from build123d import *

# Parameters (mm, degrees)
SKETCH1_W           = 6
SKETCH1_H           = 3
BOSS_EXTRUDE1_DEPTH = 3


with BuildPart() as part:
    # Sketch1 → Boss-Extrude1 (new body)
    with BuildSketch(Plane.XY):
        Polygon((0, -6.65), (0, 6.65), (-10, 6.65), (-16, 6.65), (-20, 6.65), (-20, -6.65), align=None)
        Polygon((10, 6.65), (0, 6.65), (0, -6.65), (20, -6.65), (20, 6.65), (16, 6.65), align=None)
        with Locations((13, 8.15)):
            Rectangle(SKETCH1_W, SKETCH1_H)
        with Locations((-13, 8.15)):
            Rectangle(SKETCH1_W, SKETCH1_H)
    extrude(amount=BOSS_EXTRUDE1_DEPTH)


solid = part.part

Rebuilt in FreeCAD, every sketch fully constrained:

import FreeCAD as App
import Part
import Sketcher

V = App.Vector
Q = App.Units.Quantity

doc = App.newDocument("Part")
body = doc.addObject("PartDesign::Body", "Body")

sketch1 = body.newObject("Sketcher::SketchObject", "Sketch")
sketch1.AttachmentSupport = (doc.getObject("XY_Plane"), [""])
sketch1.MapMode = "FlatFace"
sketch1.addGeometry([
    Part.LineSegment(V(-20, 6.7, 0), V(-20, -6.7, 0)),
    Part.LineSegment(V(-20, -6.7, 0), V(20, -6.7, 0)),
    Part.LineSegment(V(20, -6.7, 0), V(20, 6.7, 0)),
    Part.LineSegment(V(20, 6.7, 0), V(16, 6.7, 0)),
    Part.LineSegment(V(16, 6.7, 0), V(16, 9.7, 0)),
    Part.LineSegment(V(16, 9.7, 0), V(10, 9.7, 0)),
    Part.LineSegment(V(10, 9.7, 0), V(10, 6.7, 0)),
    Part.LineSegment(V(10, 6.7, 0), V(-10, 6.7, 0)),
    Part.LineSegment(V(-10, 6.7, 0), V(-10, 9.7, 0)),
    Part.LineSegment(V(-10, 9.7, 0), V(-16, 9.7, 0)),
    Part.LineSegment(V(-16, 9.7, 0), V(-16, 6.7, 0)),
    Part.LineSegment(V(-16, 6.7, 0), V(-20, 6.7, 0)),
], False)
sketch1.addConstraint([
    Sketcher.Constraint("Coincident", 0, 2, 1, 1),
    Sketcher.Constraint("Coincident", 1, 2, 2, 1),
    Sketcher.Constraint("Coincident", 2, 2, 3, 1),
    Sketcher.Constraint("Coincident", 3, 2, 4, 1),
    Sketcher.Constraint("Coincident", 4, 2, 5, 1),
    Sketcher.Constraint("Coincident", 5, 2, 6, 1),
    Sketcher.Constraint("Coincident", 6, 2, 7, 1),
    Sketcher.Constraint("Coincident", 7, 2, 8, 1),
    Sketcher.Constraint("Coincident", 8, 2, 9, 1),
    Sketcher.Constraint("Coincident", 9, 2, 10, 1),
    Sketcher.Constraint("Coincident", 10, 2, 11, 1),
    Sketcher.Constraint("Coincident", 11, 2, 0, 1),
    Sketcher.Constraint("Vertical", 0),
    Sketcher.Constraint("Horizontal", 1),
    Sketcher.Constraint("Vertical", 2),
    Sketcher.Constraint("Horizontal", 3),
    Sketcher.Constraint("Vertical", 4),
    Sketcher.Constraint("Horizontal", 5),
    Sketcher.Constraint("Vertical", 6),
    Sketcher.Constraint("Horizontal", 7),
    Sketcher.Constraint("Vertical", 8),
    Sketcher.Constraint("Horizontal", 9),
    Sketcher.Constraint("Vertical", 10),
    Sketcher.Constraint("Horizontal", 11),
    Sketcher.Constraint("Symmetric", 0, 2, 2, 2, -1, 1),
    Sketcher.Constraint("Symmetric", 5, 2, 8, 2, -2),
    Sketcher.Constraint("Symmetric", 3, 2, 10, 2, -2),
    Sketcher.Constraint("Horizontal", 3, 2, 6, 2),
    Sketcher.Constraint("DistanceX", 1, 1, 1, 2, Q("40 mm")),
    Sketcher.Constraint("DistanceX", 3, 2, 3, 1, Q("4 mm")),
    Sketcher.Constraint("DistanceX", 5, 2, 5, 1, Q("6 mm")),
    Sketcher.Constraint("DistanceY", 4, 1, 4, 2, Q("3 mm")),
    Sketcher.Constraint("DistanceY", 0, 2, 0, 1, Q("13.3 mm")),
])
pad1 = body.newObject("PartDesign::Pad", "Pad")
pad1.Profile = sketch1
pad1.Length = 3

doc.recompute()
